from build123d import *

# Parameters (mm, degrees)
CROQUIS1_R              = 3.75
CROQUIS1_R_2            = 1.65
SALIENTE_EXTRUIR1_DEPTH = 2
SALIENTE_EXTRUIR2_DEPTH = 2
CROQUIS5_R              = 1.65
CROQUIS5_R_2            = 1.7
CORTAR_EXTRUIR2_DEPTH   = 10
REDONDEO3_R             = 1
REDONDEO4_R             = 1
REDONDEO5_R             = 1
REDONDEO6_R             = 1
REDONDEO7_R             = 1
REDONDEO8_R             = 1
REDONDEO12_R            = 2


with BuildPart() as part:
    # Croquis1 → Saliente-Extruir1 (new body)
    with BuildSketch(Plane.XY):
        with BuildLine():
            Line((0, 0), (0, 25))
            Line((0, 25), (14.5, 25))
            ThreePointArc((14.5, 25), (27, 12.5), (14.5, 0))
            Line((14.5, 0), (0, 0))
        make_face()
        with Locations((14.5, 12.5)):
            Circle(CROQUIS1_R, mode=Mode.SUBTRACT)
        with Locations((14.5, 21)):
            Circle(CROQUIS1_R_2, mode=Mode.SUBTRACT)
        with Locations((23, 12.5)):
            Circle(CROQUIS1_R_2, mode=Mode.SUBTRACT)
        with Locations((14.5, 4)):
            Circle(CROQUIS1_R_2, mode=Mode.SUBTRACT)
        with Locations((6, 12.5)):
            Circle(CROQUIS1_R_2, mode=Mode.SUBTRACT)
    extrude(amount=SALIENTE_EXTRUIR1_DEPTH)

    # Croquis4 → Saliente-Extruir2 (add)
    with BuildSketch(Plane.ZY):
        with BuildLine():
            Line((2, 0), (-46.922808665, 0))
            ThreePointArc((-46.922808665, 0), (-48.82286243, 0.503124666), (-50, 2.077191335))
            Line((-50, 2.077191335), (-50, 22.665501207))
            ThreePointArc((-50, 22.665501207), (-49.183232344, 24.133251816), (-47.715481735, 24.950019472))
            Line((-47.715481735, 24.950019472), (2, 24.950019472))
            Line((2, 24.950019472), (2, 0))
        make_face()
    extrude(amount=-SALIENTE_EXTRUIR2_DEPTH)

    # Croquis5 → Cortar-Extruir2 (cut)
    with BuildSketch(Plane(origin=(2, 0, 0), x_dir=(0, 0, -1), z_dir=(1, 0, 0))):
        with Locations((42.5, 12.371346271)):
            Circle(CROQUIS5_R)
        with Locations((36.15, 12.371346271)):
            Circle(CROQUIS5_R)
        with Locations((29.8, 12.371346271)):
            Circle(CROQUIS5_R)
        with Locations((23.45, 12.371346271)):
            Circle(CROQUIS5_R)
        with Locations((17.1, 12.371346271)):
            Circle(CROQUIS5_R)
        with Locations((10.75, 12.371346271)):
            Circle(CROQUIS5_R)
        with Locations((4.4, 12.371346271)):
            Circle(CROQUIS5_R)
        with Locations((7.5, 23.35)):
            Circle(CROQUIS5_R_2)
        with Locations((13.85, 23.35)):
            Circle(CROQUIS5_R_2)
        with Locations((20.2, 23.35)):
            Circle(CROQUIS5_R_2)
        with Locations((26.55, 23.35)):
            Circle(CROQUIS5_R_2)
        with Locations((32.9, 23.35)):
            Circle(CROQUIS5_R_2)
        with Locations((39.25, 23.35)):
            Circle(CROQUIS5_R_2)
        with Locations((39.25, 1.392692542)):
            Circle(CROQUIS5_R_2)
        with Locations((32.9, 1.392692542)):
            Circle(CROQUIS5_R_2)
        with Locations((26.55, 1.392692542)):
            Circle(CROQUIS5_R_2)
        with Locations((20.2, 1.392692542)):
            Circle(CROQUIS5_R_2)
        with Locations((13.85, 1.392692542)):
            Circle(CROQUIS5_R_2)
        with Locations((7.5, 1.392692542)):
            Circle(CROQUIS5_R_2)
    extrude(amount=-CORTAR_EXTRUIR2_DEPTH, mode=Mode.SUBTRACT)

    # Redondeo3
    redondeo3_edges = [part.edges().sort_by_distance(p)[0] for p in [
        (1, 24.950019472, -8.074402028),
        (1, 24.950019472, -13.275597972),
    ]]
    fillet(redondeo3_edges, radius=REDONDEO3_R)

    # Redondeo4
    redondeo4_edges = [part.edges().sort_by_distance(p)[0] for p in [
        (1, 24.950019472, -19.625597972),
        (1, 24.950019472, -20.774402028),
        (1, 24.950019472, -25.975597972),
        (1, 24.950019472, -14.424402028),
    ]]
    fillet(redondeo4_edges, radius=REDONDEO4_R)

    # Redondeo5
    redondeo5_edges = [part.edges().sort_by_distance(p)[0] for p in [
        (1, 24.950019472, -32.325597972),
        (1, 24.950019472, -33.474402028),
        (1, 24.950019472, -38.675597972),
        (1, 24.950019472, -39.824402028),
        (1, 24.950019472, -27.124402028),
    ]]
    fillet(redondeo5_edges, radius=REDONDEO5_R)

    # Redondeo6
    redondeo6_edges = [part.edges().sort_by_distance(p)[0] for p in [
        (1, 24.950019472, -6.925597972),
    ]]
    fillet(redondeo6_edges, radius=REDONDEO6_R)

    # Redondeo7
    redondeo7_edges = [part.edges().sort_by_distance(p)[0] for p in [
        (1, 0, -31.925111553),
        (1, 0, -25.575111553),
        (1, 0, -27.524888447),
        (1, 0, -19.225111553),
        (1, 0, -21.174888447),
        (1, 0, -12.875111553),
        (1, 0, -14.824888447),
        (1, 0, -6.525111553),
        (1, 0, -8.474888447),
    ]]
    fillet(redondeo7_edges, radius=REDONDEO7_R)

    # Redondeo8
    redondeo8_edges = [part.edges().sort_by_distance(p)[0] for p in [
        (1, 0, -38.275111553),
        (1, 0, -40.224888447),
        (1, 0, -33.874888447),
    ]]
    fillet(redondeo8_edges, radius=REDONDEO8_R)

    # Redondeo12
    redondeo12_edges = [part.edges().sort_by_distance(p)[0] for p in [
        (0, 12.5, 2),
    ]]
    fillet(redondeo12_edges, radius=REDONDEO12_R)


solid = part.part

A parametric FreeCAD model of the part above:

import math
import FreeCAD as App
import Part
import Sketcher

V = App.Vector


def edges_at(feature, points):
    """Names of the edges that pass closest to the given points."""
    edges = feature.Shape.Edges
    near = lambda p: min(range(len(edges)), key=lambda i: edges[i].distToShape(Part.Vertex(*p))[0])
    return sorted({f"Edge{near(p) + 1}" for p in points})

doc = App.newDocument("Part")
body = doc.addObject("PartDesign::Body", "Body")

sketch1 = doc.addObject("Sketcher::SketchObject", "Sketch")
body.addObject(sketch1)
sketch1.AttachmentSupport = (doc.XY_Plane, [""])
sketch1.MapMode = "FlatFace"
sketch1.addGeometry([
    Part.LineSegment(V(0, 25, 0), V(0, 0, 0)),
    Part.LineSegment(V(0, 0, 0), V(14.5, 0, 0)),
    Part.ArcOfCircle(Part.Circle(V(14.5, 12.5, 0), V(0, 0, 1), 12.5), math.radians(-90), math.radians(90)),
    Part.LineSegment(V(14.5, 25, 0), V(0, 25, 0)),
    Part.Circle(V(14.5, 4, 0), V(0, 0, 1), 1.6),
    Part.Circle(V(23, 12.5, 0), V(0, 0, 1), 1.6),
    Part.Circle(V(14.5, 12.5, 0), V(0, 0, 1), 3.8),
    Part.Circle(V(6, 12.5, 0), V(0, 0, 1), 1.6),
    Part.Circle(V(14.5, 21, 0), V(0, 0, 1), 1.6),
], False)
sketch1.addConstraint([
    Sketcher.Constraint("Coincident", 0, 2, 1, 1),
    Sketcher.Constraint("Tangent", 1, 2, 2, 1),
    Sketcher.Constraint("Tangent", 2, 2, 3, 1),
    Sketcher.Constraint("Coincident", 3, 2, 0, 1),
    Sketcher.Constraint("Vertical", 0),
    Sketcher.Constraint("Horizontal", 1),
    Sketcher.Constraint("Horizontal", 3),
    Sketcher.Constraint("Coincident", 0, 2, -1, 1),
    Sketcher.Constraint("Coincident", 6, 3, 2, 3),
    Sketcher.Constraint("Equal", 4, 5),
    Sketcher.Constraint("Equal", 5, 7),
    Sketcher.Constraint("Equal", 7, 8),
    Sketcher.Constraint("Horizontal", 2, 3, 5, 3),
    Sketcher.Constraint("Horizontal", 6, 3, 7, 3),
    Sketcher.Constraint("Vertical", 2, 3, 4, 3),
    Sketcher.Constraint("Vertical", 6, 3, 8, 3),
    Sketcher.Constraint("Diameter", 4, 3.3),
    Sketcher.Constraint("Diameter", 6, 7.5),
    Sketcher.Constraint("Radius", 2, 12.5),
    Sketcher.Constraint("DistanceX", 1, 1, 1, 2, 14.5),
    Sketcher.Constraint("DistanceY", -1, 1, 4, 3, 4.0),
    Sketcher.Constraint("DistanceX", -1, 1, 5, 3, 23.0),
    Sketcher.Constraint("DistanceX", -1, 1, 7, 3, 6.0),
    Sketcher.Constraint("DistanceY", -1, 1, 8, 3, 21.0),
])
pad1 = doc.addObject("PartDesign::Pad", "Pad")
body.addObject(pad1)
pad1.Profile = sketch1
pad1.Length = 2

sketch2 = doc.addObject("Sketcher::SketchObject", "Sketch001")
body.addObject(sketch2)
sketch2.AttachmentSupport = (doc.YZ_Plane, [""])
sketch2.MapMode = "FlatFace"
sketch2.addGeometry([
    Part.LineSegment(V(0, -46.9, 0), V(0, 2, 0)),
    Part.LineSegment(V(0, 2, 0), V(25, 2, 0)),
    Part.LineSegment(V(25, 2, 0), V(25, -47.7, 0)),
    Part.ArcOfCircle(Part.Circle(V(22, -47, 0), V(0, 0, 1), 3.1), math.radians(-77), math.radians(-13)),
    Part.LineSegment(V(22.7, -50, 0), V(2.1, -50, 0)),
    Part.ArcOfCircle(Part.Circle(V(3, -47.2, 0), V(0, 0, 1), 3), math.radians(176), math.radians(252)),
], False)
sketch2.addConstraint([
    Sketcher.Constraint("Coincident", 0, 2, 1, 1),
    Sketcher.Constraint("Coincident", 1, 2, 2, 1),
    Sketcher.Constraint("Coincident", 2, 2, 3, 2),
    Sketcher.Constraint("Coincident", 3, 1, 4, 1),
    Sketcher.Constraint("Coincident", 4, 2, 5, 2),
    Sketcher.Constraint("Coincident", 5, 1, 0, 1),
    Sketcher.Constraint("Vertical", 0),
    Sketcher.Constraint("Horizontal", 1),
    Sketcher.Constraint("Vertical", 2),
    Sketcher.Constraint("Horizontal", 4),
    Sketcher.Constraint("PointOnObject", 0, 2, -2),
    Sketcher.Constraint("DistanceY", -1, 1, 0, 2, 2.0),
    Sketcher.Constraint("DistanceY", 3, 1, -1, 1, 50.0),
    Sketcher.Constraint("Radius", 3, 3.064645),
    Sketcher.Constraint("Radius", 5, 2.989967),
    Sketcher.Constraint("DistanceX", 1, 1, 1, 2, 24.950019),
    Sketcher.Constraint("DistanceX", 4, 2, 4, 1, 20.58831),
    Sketcher.Constraint("DistanceY", 0, 1, 0, 2, 48.922809),
    Sketcher.Constraint("DistanceY", 2, 2, 2, 1, 49.715482),
    Sketcher.Constraint("DistanceY", 3, 3, -1, 1, 47.016201),
])
pad2 = doc.addObject("PartDesign::Pad", "Pad001")
body.addObject(pad2)
pad2.Profile = sketch2
pad2.Length = 2

sketch3 = doc.addObject("Sketcher::SketchObject", "Sketch002")
body.addObject(sketch3)
sketch3.AttachmentSupport = (doc.YZ_Plane, [""])
sketch3.MapMode = "FlatFace"
sketch3.AttachmentOffset = App.Placement(V(0, 0, 2), App.Rotation())
sketch3.addGeometry([
    Part.Circle(V(12.4, -42.5, 0), V(0, 0, 1), 1.6),
    Part.Circle(V(12.4, -36.1, 0), V(0, 0, 1), 1.6),
    Part.Circle(V(12.4, -29.8, 0), V(0, 0, 1), 1.6),
    Part.Circle(V(12.4, -23.4, 0), V(0, 0, 1), 1.6),
    Part.Circle(V(12.4, -17.1, 0), V(0, 0, 1), 1.6),
    Part.Circle(V(12.4, -10.8, 0), V(0, 0, 1), 1.6),
    Part.Circle(V(12.4, -4.4, 0), V(0, 0, 1), 1.6),
    Part.Circle(V(23.4, -7.5, 0), V(0, 0, 1), 1.7),
    Part.Circle(V(23.4, -13.8, 0), V(0, 0, 1), 1.7),
    Part.Circle(V(23.4, -20.2, 0), V(0, 0, 1), 1.7),
    Part.Circle(V(23.4, -26.6, 0), V(0, 0, 1), 1.7),
    Part.Circle(V(23.4, -32.9, 0), V(0, 0, 1), 1.7),
    Part.Circle(V(23.4, -39.2, 0), V(0, 0, 1), 1.7),
    Part.Circle(V(1.4, -39.2, 0), V(0, 0, 1), 1.7),
    Part.Circle(V(1.4, -32.9, 0), V(0, 0, 1), 1.7),
    Part.Circle(V(1.4, -26.6, 0), V(0, 0, 1), 1.7),
    Part.Circle(V(1.4, -20.2, 0), V(0, 0, 1), 1.7),
    Part.Circle(V(1.4, -13.8, 0), V(0, 0, 1), 1.7),
    Part.Circle(V(1.4, -7.5, 0), V(0, 0, 1), 1.7),
], False)
sketch3.addConstraint([
    Sketcher.Constraint("Equal", 0, 1),
    Sketcher.Constraint("Equal", 1, 2),
    Sketcher.Constraint("Equal", 2, 3),
    Sketcher.Constraint("Equal", 3, 4),
    Sketcher.Constraint("Equal", 4, 5),
    Sketcher.Constraint("Equal", 5, 6),
    Sketcher.Constraint("Equal", 7, 8),
    Sketcher.Constraint("Equal", 8, 9),
    Sketcher.Constraint("Equal", 9, 10),
    Sketcher.Constraint("Equal", 10, 11),
    Sketcher.Constraint("Equal", 11, 12),
    Sketcher.Constraint("Equal", 12, 13),
    Sketcher.Constraint("Equal", 13, 14),
    Sketcher.Constraint("Equal", 14, 15),
    Sketcher.Constraint("Equal", 15, 16),
    Sketcher.Constraint("Equal", 16, 17),
    Sketcher.Constraint("Equal", 17, 18),
    Sketcher.Constraint("Horizontal", 12, 3, 13, 3),
    Sketcher.Constraint("Horizontal", 11, 3, 14, 3),
    Sketcher.Constraint("Horizontal", 10, 3, 15, 3),
    Sketcher.Constraint("Horizontal", 9, 3, 16, 3),
    Sketcher.Constraint("Horizontal", 8, 3, 17, 3),
    Sketcher.Constraint("Horizontal", 7, 3, 18, 3),
    Sketcher.Constraint("Vertical", 0, 3, 1, 3),
    Sketcher.Constraint("Vertical", 1, 3, 2, 3),
    Sketcher.Constraint("Vertical", 2, 3, 3, 3),
    Sketcher.Constraint("Vertical", 3, 3, 4, 3),
    Sketcher.Constraint("Vertical", 4, 3, 5, 3),
    Sketcher.Constraint("Vertical", 5, 3, 6, 3),
    Sketcher.Constraint("Vertical", 7, 3, 8, 3),
    Sketcher.Constraint("Vertical", 8, 3, 9, 3),
    Sketcher.Constraint("Vertical", 9, 3, 10, 3),
    Sketcher.Constraint("Vertical", 10, 3, 11, 3),
    Sketcher.Constraint("Vertical", 11, 3, 12, 3),
    Sketcher.Constraint("Vertical", 13, 3, 14, 3),
    Sketcher.Constraint("Vertical", 14, 3, 15, 3),
    Sketcher.Constraint("Vertical", 15, 3, 16, 3),
    Sketcher.Constraint("Vertical", 16, 3, 17, 3),
    Sketcher.Constraint("Vertical", 17, 3, 18, 3),
    Sketcher.Constraint("Diameter", 0, 3.3),
    Sketcher.Constraint("Diameter", 7, 3.4),
    Sketcher.Constraint("DistanceY", 0, 3, -1, 1, 42.5),
    Sketcher.Constraint("DistanceY", 2, 3, -1, 1, 29.8),
    Sketcher.Constraint("DistanceY", 4, 3, -1, 1, 17.1),
    Sketcher.Constraint("DistanceY", 6, 3, -1, 1, 4.4),
    Sketcher.Constraint("DistanceY", 7, 3, -1, 1, 7.5),
    Sketcher.Constraint("DistanceY", 9, 3, -1, 1, 20.2),
    Sketcher.Constraint("DistanceY", 11, 3, -1, 1, 32.9),
    Sketcher.Constraint("DistanceY", 1, 3, 3, 3, 12.7),
    Sketcher.Constraint("DistanceY", 3, 3, 5, 3, 12.7),
    Sketcher.Constraint("DistanceY", 8, 3, 5, 3, 3.1),
    Sketcher.Constraint("DistanceY", 10, 3, 3, 3, 3.1),
    Sketcher.Constraint("DistanceY", 12, 3, 1, 3, 3.1),
    Sketcher.Constraint("DistanceY", 1, 3, -1, 1, 36.15),
    Sketcher.Constraint("DistanceX", -1, 1, 7, 3, 23.35),
    Sketcher.Constraint("DistanceX", -1, 1, 0, 3, 12.371346),
    Sketcher.Constraint("DistanceX", -1, 1, 13, 3, 1.392693),
])
pocket1 = doc.addObject("PartDesign::Pocket", "Pocket")
body.addObject(pocket1)
pocket1.Profile = sketch3
pocket1.Length = 10
doc.recompute()

fillet = doc.addObject("PartDesign::Fillet", "Fillet")
body.addObject(fillet)
fillet.Base = (pocket1, edges_at(pocket1, [(1, 24.95, -8.074), (1, 24.95, -13.276)]))
fillet.Radius = 1
doc.recompute()

fillet2 = doc.addObject("PartDesign::Fillet", "Fillet001")
body.addObject(fillet2)
fillet2.Base = (fillet, edges_at(fillet, [
    (1, 24.95, -19.626),
    (1, 24.95, -20.774),
    (1, 24.95, -25.976),
    (1, 24.95, -14.424),
]))
fillet2.Radius = 1
doc.recompute()

fillet3 = doc.addObject("PartDesign::Fillet", "Fillet002")
body.addObject(fillet3)
fillet3.Base = (fillet2, edges_at(fillet2, [
    (1, 24.95, -32.326),
    (1, 24.95, -33.474),
    (1, 24.95, -38.676),
    (1, 24.95, -39.824),
    (1, 24.95, -27.124),
]))
fillet3.Radius = 1
doc.recompute()

fillet4 = doc.addObject("PartDesign::Fillet", "Fillet003")
body.addObject(fillet4)
fillet4.Base = (fillet3, edges_at(fillet3, [(1, 24.95, -6.926)]))
fillet4.Radius = 1
doc.recompute()

fillet5 = doc.addObject("PartDesign::Fillet", "Fillet004")
body.addObject(fillet5)
fillet5.Base = (fillet4, edges_at(fillet4, [
    (1, 0, -31.925),
    (1, 0, -25.575),
    (1, 0, -27.525),
    (1, 0, -19.225),
    (1, 0, -21.175),
    (1, 0, -12.875),
    (1, 0, -14.825),
    (1, 0, -6.525),
    (1, 0, -8.475),
]))
fillet5.Radius = 1
doc.recompute()

fillet6 = doc.addObject("PartDesign::Fillet", "Fillet005")
body.addObject(fillet6)
fillet6.Base = (fillet5, edges_at(fillet5, [(1, 0, -38.275), (1, 0, -40.225), (1, 0, -33.875)]))
fillet6.Radius = 1
doc.recompute()

fillet7 = doc.addObject("PartDesign::Fillet", "Fillet006")
body.addObject(fillet7)
fillet7.Base = (fillet6, edges_at(fillet6, [(0, 12.5, 2)]))
fillet7.Radius = 2

doc.recompute()
